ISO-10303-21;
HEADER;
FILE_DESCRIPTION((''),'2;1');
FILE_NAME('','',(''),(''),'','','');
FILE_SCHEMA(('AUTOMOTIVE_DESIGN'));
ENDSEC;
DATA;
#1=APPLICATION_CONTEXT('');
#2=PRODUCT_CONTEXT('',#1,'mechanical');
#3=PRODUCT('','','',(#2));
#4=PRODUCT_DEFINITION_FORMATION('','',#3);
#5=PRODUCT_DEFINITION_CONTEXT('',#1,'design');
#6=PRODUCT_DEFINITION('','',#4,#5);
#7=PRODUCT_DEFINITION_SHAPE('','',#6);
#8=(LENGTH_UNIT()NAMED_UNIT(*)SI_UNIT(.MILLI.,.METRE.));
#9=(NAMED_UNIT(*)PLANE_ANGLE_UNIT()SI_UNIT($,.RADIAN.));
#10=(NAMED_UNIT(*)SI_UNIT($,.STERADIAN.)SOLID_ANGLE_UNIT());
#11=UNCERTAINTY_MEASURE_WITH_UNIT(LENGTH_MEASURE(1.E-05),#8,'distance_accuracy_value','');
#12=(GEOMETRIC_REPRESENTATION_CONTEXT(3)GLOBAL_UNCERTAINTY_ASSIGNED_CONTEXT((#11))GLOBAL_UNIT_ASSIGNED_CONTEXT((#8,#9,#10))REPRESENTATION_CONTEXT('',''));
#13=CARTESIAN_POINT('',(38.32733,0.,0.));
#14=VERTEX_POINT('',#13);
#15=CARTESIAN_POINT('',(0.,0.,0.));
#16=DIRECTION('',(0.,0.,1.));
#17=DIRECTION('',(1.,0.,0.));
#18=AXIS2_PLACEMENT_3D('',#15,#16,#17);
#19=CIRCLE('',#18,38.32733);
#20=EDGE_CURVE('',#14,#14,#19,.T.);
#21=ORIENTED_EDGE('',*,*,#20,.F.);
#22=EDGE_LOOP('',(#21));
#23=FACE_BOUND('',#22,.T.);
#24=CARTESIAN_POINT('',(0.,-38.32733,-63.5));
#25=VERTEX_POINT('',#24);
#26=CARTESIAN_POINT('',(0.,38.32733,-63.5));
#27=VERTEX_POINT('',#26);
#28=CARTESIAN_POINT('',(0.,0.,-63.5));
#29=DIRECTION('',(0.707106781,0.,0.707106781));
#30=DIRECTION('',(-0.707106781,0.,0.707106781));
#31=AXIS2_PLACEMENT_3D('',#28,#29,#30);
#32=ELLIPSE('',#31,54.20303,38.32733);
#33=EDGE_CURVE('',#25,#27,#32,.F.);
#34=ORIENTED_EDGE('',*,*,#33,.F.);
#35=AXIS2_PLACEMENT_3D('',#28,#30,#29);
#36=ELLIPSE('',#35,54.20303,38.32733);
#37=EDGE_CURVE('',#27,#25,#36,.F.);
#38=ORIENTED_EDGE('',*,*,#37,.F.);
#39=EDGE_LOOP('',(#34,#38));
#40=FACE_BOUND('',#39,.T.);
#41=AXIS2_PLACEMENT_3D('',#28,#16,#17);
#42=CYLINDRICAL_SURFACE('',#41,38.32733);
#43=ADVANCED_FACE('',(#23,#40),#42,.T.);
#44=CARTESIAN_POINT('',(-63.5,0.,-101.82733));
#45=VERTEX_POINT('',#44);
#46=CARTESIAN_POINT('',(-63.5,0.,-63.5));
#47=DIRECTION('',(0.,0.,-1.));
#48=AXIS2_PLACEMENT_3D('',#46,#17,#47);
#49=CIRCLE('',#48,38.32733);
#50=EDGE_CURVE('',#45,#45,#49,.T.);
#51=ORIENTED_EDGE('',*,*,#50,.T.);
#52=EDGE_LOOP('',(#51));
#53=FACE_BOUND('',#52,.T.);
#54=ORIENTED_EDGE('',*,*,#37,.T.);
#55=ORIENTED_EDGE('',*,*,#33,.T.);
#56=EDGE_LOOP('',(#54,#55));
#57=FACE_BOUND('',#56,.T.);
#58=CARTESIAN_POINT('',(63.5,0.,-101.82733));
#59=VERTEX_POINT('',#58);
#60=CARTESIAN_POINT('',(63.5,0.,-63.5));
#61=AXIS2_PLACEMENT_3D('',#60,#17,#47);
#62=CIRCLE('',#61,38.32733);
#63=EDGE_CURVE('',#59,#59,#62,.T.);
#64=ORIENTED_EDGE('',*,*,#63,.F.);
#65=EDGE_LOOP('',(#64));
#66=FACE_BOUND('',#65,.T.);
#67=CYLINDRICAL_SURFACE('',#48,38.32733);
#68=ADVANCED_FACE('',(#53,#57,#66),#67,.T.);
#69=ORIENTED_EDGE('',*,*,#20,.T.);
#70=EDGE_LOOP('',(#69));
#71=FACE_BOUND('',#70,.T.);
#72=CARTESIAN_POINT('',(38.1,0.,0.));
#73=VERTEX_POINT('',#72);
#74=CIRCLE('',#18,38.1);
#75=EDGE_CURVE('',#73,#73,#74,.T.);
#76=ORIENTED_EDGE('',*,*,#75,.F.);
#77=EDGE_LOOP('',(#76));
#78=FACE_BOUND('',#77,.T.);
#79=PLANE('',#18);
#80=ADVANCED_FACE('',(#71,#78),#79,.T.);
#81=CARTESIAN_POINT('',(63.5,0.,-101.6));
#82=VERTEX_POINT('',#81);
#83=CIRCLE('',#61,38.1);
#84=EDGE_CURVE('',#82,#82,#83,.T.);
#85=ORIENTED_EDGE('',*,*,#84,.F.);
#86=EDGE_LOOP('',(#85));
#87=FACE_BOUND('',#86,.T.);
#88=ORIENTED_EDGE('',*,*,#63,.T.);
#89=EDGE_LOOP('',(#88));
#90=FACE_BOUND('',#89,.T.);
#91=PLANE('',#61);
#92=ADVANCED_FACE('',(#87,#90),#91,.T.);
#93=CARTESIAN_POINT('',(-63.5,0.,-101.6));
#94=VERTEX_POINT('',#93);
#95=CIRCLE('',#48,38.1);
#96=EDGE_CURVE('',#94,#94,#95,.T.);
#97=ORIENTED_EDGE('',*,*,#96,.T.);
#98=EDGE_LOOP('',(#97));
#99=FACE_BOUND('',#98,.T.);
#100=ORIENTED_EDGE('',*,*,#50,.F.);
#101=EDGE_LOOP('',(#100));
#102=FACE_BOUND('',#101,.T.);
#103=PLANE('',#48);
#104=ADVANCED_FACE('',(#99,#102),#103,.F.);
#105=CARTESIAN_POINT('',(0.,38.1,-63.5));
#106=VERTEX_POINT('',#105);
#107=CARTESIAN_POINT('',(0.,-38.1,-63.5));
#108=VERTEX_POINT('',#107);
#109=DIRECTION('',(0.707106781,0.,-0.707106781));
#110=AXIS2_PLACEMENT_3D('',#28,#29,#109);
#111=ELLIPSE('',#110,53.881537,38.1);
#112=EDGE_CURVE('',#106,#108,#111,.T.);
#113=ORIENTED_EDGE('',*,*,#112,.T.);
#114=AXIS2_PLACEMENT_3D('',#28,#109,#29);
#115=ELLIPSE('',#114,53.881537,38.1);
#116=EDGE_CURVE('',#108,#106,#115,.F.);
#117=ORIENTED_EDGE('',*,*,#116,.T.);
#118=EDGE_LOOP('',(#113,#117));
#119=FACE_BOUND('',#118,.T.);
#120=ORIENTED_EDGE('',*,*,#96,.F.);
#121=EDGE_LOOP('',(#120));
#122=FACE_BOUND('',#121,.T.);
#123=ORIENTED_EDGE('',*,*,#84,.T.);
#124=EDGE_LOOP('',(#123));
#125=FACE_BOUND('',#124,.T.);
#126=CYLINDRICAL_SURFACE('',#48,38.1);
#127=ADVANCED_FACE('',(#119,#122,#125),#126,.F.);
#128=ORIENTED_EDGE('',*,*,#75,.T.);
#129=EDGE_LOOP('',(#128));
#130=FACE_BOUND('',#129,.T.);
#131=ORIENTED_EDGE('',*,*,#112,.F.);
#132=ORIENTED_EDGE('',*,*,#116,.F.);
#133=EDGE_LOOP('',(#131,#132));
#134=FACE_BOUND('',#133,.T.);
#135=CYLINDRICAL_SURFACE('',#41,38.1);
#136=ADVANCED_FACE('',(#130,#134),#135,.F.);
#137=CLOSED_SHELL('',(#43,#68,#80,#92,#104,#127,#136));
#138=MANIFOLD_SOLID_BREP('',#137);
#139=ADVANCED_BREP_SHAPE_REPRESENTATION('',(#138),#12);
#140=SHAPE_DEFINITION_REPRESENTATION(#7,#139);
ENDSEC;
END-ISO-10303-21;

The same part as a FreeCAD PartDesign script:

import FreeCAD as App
import Part
import Sketcher
Q = App.Units.Quantity

doc = App.newDocument("Part")
params = doc.addObject("Spreadsheet::Sheet", "Params")
for row, (alias, value) in enumerate([
    ("pad1_length", "2.5 in"),
    ("pad2_length", "5 in"),
    ("sketch3_diameter", "3 in"),
    ("sketch4_diameter", "3 in"),
    ("pocket2_length", "2.5 in"),
], start=1):
    params.set(f"A{row}", alias)
    params.set(f"B{row}", "=" + value)
    params.setAlias(f"B{row}", alias)

body = doc.addObject("PartDesign::Body", "Body")

sketch1 = body.newObject("Sketcher::SketchObject", "Sketch")
sketch1.AttachmentSupport = (doc.getObject("XY_Plane"), [""])
sketch1.MapMode = "FlatFace"
sketch1.addGeometry(Part.Circle(App.Vector(0, 0, 0), App.Vector(0, 0, 1), 38.32733), False)
sketch1.addConstraint([
    Sketcher.Constraint("Coincident", 0, 3, -1, 1),
    Sketcher.Constraint("Diameter", 0, Q("3.0179 in")),
])
pad1 = body.newObject("PartDesign::Pad", "Pad")
pad1.Profile = sketch1
pad1.setExpression("Length", "Params.pad1_length")
pad1.Reversed = True

sketch2 = body.newObject("Sketcher::SketchObject", "Sketch001")
sketch2.AttachmentSupport = (doc.getObject("YZ_Plane"), [""])
sketch2.MapMode = "FlatFace"
sketch2.AttachmentOffset = App.Placement(App.Vector(0, 0, 2.5 * 25.4), App.Rotation())
sketch2.addGeometry(Part.Circle(App.Vector(0, -63.5, 0), App.Vector(0, 0, 1), 38.32733), False)
sketch2.addConstraint([
    Sketcher.Constraint("PointOnObject", 0, 3, -2),
    Sketcher.Constraint("Diameter", 0, Q("3.0179 in")),
    Sketcher.Constraint("DistanceY", 0, 3, -1, 1, Q("2.5 in")),
])
pad2 = body.newObject("PartDesign::Pad", "Pad001")
pad2.Profile = sketch2
pad2.setExpression("Length", "Params.pad2_length")
pad2.Reversed = True

sketch3 = body.newObject("Sketcher::SketchObject", "Sketch002")
sketch3.AttachmentSupport = (doc.getObject("YZ_Plane"), [""])
sketch3.MapMode = "FlatFace"
sketch3.AttachmentOffset = App.Placement(App.Vector(0, 0, 2.5 * 25.4), App.Rotation())
sketch3.addGeometry(Part.Circle(App.Vector(0, -63.5, 0), App.Vector(0, 0, 1), 38.1), False)
sketch3.addConstraint([
    Sketcher.Constraint("PointOnObject", 0, 3, -2),
    Sketcher.Constraint("Diameter", 0, Q("3 in")),
    Sketcher.Constraint("DistanceY", 0, 3, -1, 1, Q("2.5 in")),
])
sketch3.setExpression("Constraints[1]", "Params.sketch3_diameter")
pocket1 = body.newObject("PartDesign::Pocket", "Pocket")
pocket1.Profile = sketch3
pocket1.Type = "ThroughAll"

sketch4 = body.newObject("Sketcher::SketchObject", "Sketch003")
sketch4.AttachmentSupport = (doc.getObject("XY_Plane"), [""])
sketch4.MapMode = "FlatFace"
sketch4.addGeometry(Part.Circle(App.Vector(0, 0, 0), App.Vector(0, 0, 1), 38.1), False)
sketch4.addConstraint([
    Sketcher.Constraint("Coincident", 0, 3, -1, 1),
    Sketcher.Constraint("Diameter", 0, Q("3 in")),
])
sketch4.setExpression("Constraints[1]", "Params.sketch4_diameter")
pocket2 = body.newObject("PartDesign::Pocket", "Pocket001")
pocket2.Profile = sketch4
pocket2.setExpression("Length", "Params.pocket2_length")

doc.recompute()
